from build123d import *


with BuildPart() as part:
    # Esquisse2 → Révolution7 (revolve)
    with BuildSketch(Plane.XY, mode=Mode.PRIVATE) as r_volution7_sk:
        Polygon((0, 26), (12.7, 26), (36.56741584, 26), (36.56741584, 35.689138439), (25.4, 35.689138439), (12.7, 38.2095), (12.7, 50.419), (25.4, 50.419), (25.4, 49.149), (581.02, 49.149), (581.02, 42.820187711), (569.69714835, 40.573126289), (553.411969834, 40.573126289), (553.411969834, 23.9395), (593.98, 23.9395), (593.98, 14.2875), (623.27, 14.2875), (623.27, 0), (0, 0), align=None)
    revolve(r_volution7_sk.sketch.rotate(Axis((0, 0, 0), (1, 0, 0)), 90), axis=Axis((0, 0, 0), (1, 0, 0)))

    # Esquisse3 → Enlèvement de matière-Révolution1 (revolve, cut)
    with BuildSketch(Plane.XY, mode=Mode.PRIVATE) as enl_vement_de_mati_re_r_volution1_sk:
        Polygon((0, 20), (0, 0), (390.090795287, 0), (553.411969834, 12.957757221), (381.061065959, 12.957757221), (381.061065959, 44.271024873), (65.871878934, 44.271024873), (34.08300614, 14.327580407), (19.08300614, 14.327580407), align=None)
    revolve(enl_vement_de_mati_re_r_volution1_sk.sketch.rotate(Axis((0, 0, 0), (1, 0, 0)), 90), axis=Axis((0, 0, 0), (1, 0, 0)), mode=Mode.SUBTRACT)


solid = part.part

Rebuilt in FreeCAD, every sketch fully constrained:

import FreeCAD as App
import Part
import Sketcher

V = App.Vector
Q = App.Units.Quantity

doc = App.newDocument("Part")
body = doc.addObject("PartDesign::Body", "Body")

sketch1 = body.newObject("Sketcher::SketchObject", "Sketch")
sketch1.AttachmentSupport = (doc.getObject("XY_Plane"), [""])
sketch1.MapMode = "FlatFace"
sketch1.addGeometry([
    Part.LineSegment(V(36.6, 26, 0), V(0, 26, 0)),
    Part.LineSegment(V(0, 26, 0), V(0, 0, 0)),
    Part.LineSegment(V(0, 0, 0), V(623.3, 0, 0)),
    Part.LineSegment(V(623.3, 0, 0), V(623.3, 14.3, 0)),
    Part.LineSegment(V(623.3, 14.3, 0), V(594, 14.3, 0)),
    Part.LineSegment(V(594, 14.3, 0), V(594, 23.9, 0)),
    Part.LineSegment(V(594, 23.9, 0), V(553.4, 23.9, 0)),
    Part.LineSegment(V(553.4, 23.9, 0), V(553.4, 40.6, 0)),
    Part.LineSegment(V(553.4, 40.6, 0), V(569.7, 40.6, 0)),
    Part.LineSegment(V(569.7, 40.6, 0), V(581, 42.8, 0)),
    Part.LineSegment(V(581, 42.8, 0), V(581, 49.1, 0)),
    Part.LineSegment(V(581, 49.1, 0), V(25.4, 49.1, 0)),
    Part.LineSegment(V(25.4, 49.1, 0), V(25.4, 50.4, 0)),
    Part.LineSegment(V(25.4, 50.4, 0), V(12.7, 50.4, 0)),
    Part.LineSegment(V(12.7, 50.4, 0), V(12.7, 38.2, 0)),
    Part.LineSegment(V(12.7, 38.2, 0), V(25.4, 35.7, 0)),
    Part.LineSegment(V(25.4, 35.7, 0), V(36.6, 35.7, 0)),
    Part.LineSegment(V(36.6, 35.7, 0), V(36.6, 26, 0)),
], False)
sketch1.addConstraint([
    Sketcher.Constraint("Coincident", 0, 2, 1, 1),
    Sketcher.Constraint("Coincident", 1, 2, 2, 1),
    Sketcher.Constraint("Coincident", 2, 2, 3, 1),
    Sketcher.Constraint("Coincident", 3, 2, 4, 1),
    Sketcher.Constraint("Coincident", 4, 2, 5, 1),
    Sketcher.Constraint("Coincident", 5, 2, 6, 1),
    Sketcher.Constraint("Coincident", 6, 2, 7, 1),
    Sketcher.Constraint("Coincident", 7, 2, 8, 1),
    Sketcher.Constraint("Coincident", 8, 2, 9, 1),
    Sketcher.Constraint("Coincident", 9, 2, 10, 1),
    Sketcher.Constraint("Coincident", 10, 2, 11, 1),
    Sketcher.Constraint("Coincident", 11, 2, 12, 1),
    Sketcher.Constraint("Coincident", 12, 2, 13, 1),
    Sketcher.Constraint("Coincident", 13, 2, 14, 1),
    Sketcher.Constraint("Coincident", 14, 2, 15, 1),
    Sketcher.Constraint("Coincident", 15, 2, 16, 1),
    Sketcher.Constraint("Coincident", 16, 2, 17, 1),
    Sketcher.Constraint("Coincident", 17, 2, 0, 1),
    Sketcher.Constraint("Horizontal", 0),
    Sketcher.Constraint("Vertical", 1),
    Sketcher.Constraint("Horizontal", 2),
    Sketcher.Constraint("Vertical", 3),
    Sketcher.Constraint("Horizontal", 4),
    Sketcher.Constraint("Vertical", 5),
    Sketcher.Constraint("Horizontal", 6),
    Sketcher.Constraint("Vertical", 7),
    Sketcher.Constraint("Horizontal", 8),
    Sketcher.Constraint("Vertical", 10),
    Sketcher.Constraint("Horizontal", 11),
    Sketcher.Constraint("Vertical", 12),
    Sketcher.Constraint("Horizontal", 13),
    Sketcher.Constraint("Vertical", 14),
    Sketcher.Constraint("Horizontal", 16),
    Sketcher.Constraint("Vertical", 17),
    Sketcher.Constraint("Coincident", 1, 2, -1, 1),
    Sketcher.Constraint("Vertical", 12, 2, 15, 2),
    Sketcher.Constraint("DistanceX", 13, 2, 13, 1, Q("0.5 in")),
    Sketcher.Constraint("DistanceX", -1, 1, 11, 2, Q("1 in")),
    Sketcher.Constraint("DistanceY", 5, 1, 5, 2, Q("0.38 in")),
    Sketcher.Constraint("DistanceY", 12, 1, 12, 2, Q("0.05 in")),
    Sketcher.Constraint("DistanceY", 3, 1, 3, 2, Q("0.5625 in")),
    Sketcher.Constraint("DistanceY", -1, 1, 10, 2, Q("1.935 in")),
    Sketcher.Constraint("DistanceX", 2, 1, 2, 2, Q("623.27 mm")),
    Sketcher.Constraint("DistanceX", 4, 2, 4, 1, Q("29.29 mm")),
    Sketcher.Constraint("DistanceX", 11, 2, 11, 1, Q("555.62 mm")),
    Sketcher.Constraint("DistanceY", 1, 2, 1, 1, Q("26 mm")),
    Sketcher.Constraint("DistanceY", 14, 2, 14, 1, Q("12.2095 mm")),
    Sketcher.Constraint("DistanceX", 6, 2, 6, 1, Q("40.56803 mm")),
    Sketcher.Constraint("DistanceX", 8, 1, 8, 2, Q("16.285179 mm")),
    Sketcher.Constraint("DistanceY", 17, 2, 17, 1, Q("9.689138 mm")),
    Sketcher.Constraint("DistanceX", 0, 2, 0, 1, Q("36.567416 mm")),
    Sketcher.Constraint("DistanceY", 7, 1, 7, 2, Q("16.633626 mm")),
    Sketcher.Constraint("DistanceY", 10, 1, 10, 2, Q("6.328812 mm")),
])
revolution = body.newObject("PartDesign::Revolution", "Revolution")
revolution.Profile = sketch1
revolution.ReferenceAxis = (sketch1, ["H_Axis"])
revolution.Angle = 360

sketch2 = body.newObject("Sketcher::SketchObject", "Sketch001")
sketch2.AttachmentSupport = (doc.getObject("XY_Plane"), [""])
sketch2.MapMode = "FlatFace"
sketch2.addGeometry([
    Part.LineSegment(V(0, 20, 0), V(0, 0, 0)),
    Part.LineSegment(V(0, 0, 0), V(390, 0, 0)),
    Part.LineSegment(V(390, 0, 0), V(553, 13, 0)),
    Part.LineSegment(V(553, 13, 0), V(381, 13, 0)),
    Part.LineSegment(V(381, 13, 0), V(381, 44, 0)),
    Part.LineSegment(V(381, 44, 0), V(66, 44, 0)),
    Part.LineSegment(V(66, 44, 0), V(34, 14, 0)),
    Part.LineSegment(V(34, 14, 0), V(19, 14, 0)),
    Part.LineSegment(V(19, 14, 0), V(0, 20, 0)),
], False)
sketch2.addConstraint([
    Sketcher.Constraint("Coincident", 0, 2, 1, 1),
    Sketcher.Constraint("Coincident", 1, 2, 2, 1),
    Sketcher.Constraint("Coincident", 2, 2, 3, 1),
    Sketcher.Constraint("Coincident", 3, 2, 4, 1),
    Sketcher.Constraint("Coincident", 4, 2, 5, 1),
    Sketcher.Constraint("Coincident", 5, 2, 6, 1),
    Sketcher.Constraint("Coincident", 6, 2, 7, 1),
    Sketcher.Constraint("Coincident", 7, 2, 8, 1),
    Sketcher.Constraint("Coincident", 8, 2, 0, 1),
    Sketcher.Constraint("Vertical", 0),
    Sketcher.Constraint("Horizontal", 1),
    Sketcher.Constraint("Horizontal", 3),
    Sketcher.Constraint("Vertical", 4),
    Sketcher.Constraint("Horizontal", 5),
    Sketcher.Constraint("Horizontal", 7),
    Sketcher.Constraint("Coincident", 0, 2, -1, 1),
    Sketcher.Constraint("DistanceX", 7, 2, 7, 1, Q("15 mm")),
    Sketcher.Constraint("DistanceY", 0, 2, 0, 1, Q("20 mm")),
    Sketcher.Constraint("Distance", 6, Q("43.67084 mm")),
    Sketcher.Constraint("DistanceX", 1, 1, 1, 2, Q("390.090795 mm")),
    Sketcher.Constraint("DistanceX", 3, 2, 3, 1, Q("172.350904 mm")),
    Sketcher.Constraint("DistanceX", 5, 2, 5, 1, Q("315.189187 mm")),
    Sketcher.Constraint("DistanceY", 4, 1, 4, 2, Q("31.313268 mm")),
    Sketcher.Constraint("DistanceX", -1, 1, 2, 2, Q("553.41197 mm")),
    Sketcher.Constraint("DistanceY", -1, 1, 6, 2, Q("14.32758 mm")),
    Sketcher.Constraint("DistanceX", 6, 2, 3, 2, Q("346.97806 mm")),
])
groove = body.newObject("PartDesign::Groove", "Groove")
groove.Profile = sketch2
groove.ReferenceAxis = (sketch2, ["H_Axis"])
groove.Angle = 360

doc.recompute()
